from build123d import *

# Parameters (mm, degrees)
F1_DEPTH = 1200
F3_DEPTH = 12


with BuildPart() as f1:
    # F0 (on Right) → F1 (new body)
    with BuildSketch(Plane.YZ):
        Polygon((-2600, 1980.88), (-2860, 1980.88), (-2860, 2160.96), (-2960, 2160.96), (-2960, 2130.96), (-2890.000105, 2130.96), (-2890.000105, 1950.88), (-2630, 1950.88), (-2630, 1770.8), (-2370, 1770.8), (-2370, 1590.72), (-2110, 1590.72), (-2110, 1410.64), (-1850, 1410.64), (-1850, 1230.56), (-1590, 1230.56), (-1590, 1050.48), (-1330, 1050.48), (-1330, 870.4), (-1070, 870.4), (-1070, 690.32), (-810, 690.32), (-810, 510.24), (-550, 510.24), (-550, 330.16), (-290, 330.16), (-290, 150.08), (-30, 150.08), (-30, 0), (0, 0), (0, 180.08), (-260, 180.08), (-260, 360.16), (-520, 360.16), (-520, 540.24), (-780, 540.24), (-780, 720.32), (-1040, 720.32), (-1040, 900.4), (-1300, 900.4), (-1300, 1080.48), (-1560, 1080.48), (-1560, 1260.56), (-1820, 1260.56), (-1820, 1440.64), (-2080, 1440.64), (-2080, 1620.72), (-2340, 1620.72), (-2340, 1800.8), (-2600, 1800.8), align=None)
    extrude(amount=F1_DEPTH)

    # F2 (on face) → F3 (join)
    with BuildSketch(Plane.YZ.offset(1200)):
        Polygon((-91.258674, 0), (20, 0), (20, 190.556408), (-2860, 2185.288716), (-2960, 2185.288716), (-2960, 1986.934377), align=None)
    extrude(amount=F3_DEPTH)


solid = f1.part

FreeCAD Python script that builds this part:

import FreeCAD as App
import Part
import Sketcher


def add_polygon(sketch, points):
    """Adds a closed chain of lines whose ends are joined by coincident constraints."""
    first, n = sketch.GeometryCount, len(points)
    for a, b in zip(points, points[1:] + points[:1]):
        sketch.addGeometry(Part.LineSegment(App.Vector(*a, 0), App.Vector(*b, 0)), False)
    for i in range(n):
        sketch.addConstraint(Sketcher.Constraint("Coincident", first + i, 2, first + (i + 1) % n, 1))

doc = App.newDocument("Part")
params = doc.addObject("Spreadsheet::Sheet", "Params")
for row, (alias, value) in enumerate([
    ("sketch1_width", "260 mm"),
    ("sketch1_width2", "100 mm"),
    ("sketch1_width3", "30 mm"),
    ("sketch1_height", "180.08 mm"),
    ("pad1_length", "1200 mm"),
    ("sketch2_width", "100 mm"),
    ("pad2_length", "12 mm"),
], start=1):
    params.set(f"A{row}", alias)
    params.set(f"B{row}", "=" + value)
    params.setAlias(f"B{row}", alias)

body = doc.addObject("PartDesign::Body", "Body")

sketch1 = body.newObject("Sketcher::SketchObject", "Sketch")
sketch1.AttachmentSupport = (doc.getObject("YZ_Plane"), [""])
sketch1.MapMode = "FlatFace"
add_polygon(sketch1, [(-2600, 1981), (-2860, 1981), (-2860, 2161), (-2960, 2161), (-2960, 2131), (-2890, 2131), (-2890, 1951), (-2630, 1951), (-2630, 1771), (-2370, 1771), (-2370, 1591), (-2110, 1591), (-2110, 1411), (-1850, 1411), (-1850, 1231), (-1590, 1231), (-1590, 1050), (-1330, 1050), (-1330, 870), (-1070, 870), (-1070, 690), (-810, 690), (-810, 510), (-550, 510), (-550, 330), (-290, 330), (-290, 150), (-30, 150), (-30, 0), (0, 0), (0, 180), (-260, 180), (-260, 360), (-520, 360), (-520, 540), (-780, 540), (-780, 720), (-1040, 720), (-1040, 900), (-1300, 900), (-1300, 1080), (-1560, 1080), (-1560, 1261), (-1820, 1261), (-1820, 1441), (-2080, 1441), (-2080, 1621), (-2340, 1621), (-2340, 1801), (-2600, 1801)])
sketch1.addConstraint([
    Sketcher.Constraint("Horizontal", 0),
    Sketcher.Constraint("Vertical", 1),
    Sketcher.Constraint("Horizontal", 2),
    Sketcher.Constraint("Vertical", 3),
    Sketcher.Constraint("Horizontal", 4),
    Sketcher.Constraint("Vertical", 5),
    Sketcher.Constraint("Horizontal", 6),
    Sketcher.Constraint("Vertical", 7),
    Sketcher.Constraint("Horizontal", 8),
    Sketcher.Constraint("Vertical", 9),
    Sketcher.Constraint("Horizontal", 10),
    Sketcher.Constraint("Vertical", 11),
    Sketcher.Constraint("Horizontal", 12),
    Sketcher.Constraint("Vertical", 13),
    Sketcher.Constraint("Horizontal", 14),
    Sketcher.Constraint("Vertical", 15),
    Sketcher.Constraint("Horizontal", 16),
    Sketcher.Constraint("Vertical", 17),
    Sketcher.Constraint("Horizontal", 18),
    Sketcher.Constraint("Vertical", 19),
    Sketcher.Constraint("Horizontal", 20),
    Sketcher.Constraint("Vertical", 21),
    Sketcher.Constraint("Horizontal", 22),
    Sketcher.Constraint("Vertical", 23),
    Sketcher.Constraint("Horizontal", 24),
    Sketcher.Constraint("Vertical", 25),
    Sketcher.Constraint("Horizontal", 26),
    Sketcher.Constraint("Vertical", 27),
    Sketcher.Constraint("Horizontal", 28),
    Sketcher.Constraint("Vertical", 29),
    Sketcher.Constraint("Horizontal", 30),
    Sketcher.Constraint("Vertical", 31),
    Sketcher.Constraint("Horizontal", 32),
    Sketcher.Constraint("Vertical", 33),
    Sketcher.Constraint("Horizontal", 34),
    Sketcher.Constraint("Vertical", 35),
    Sketcher.Constraint("Horizontal", 36),
    Sketcher.Constraint("Vertical", 37),
    Sketcher.Constraint("Horizontal", 38),
    Sketcher.Constraint("Vertical", 39),
    Sketcher.Constraint("Horizontal", 40),
    Sketcher.Constraint("Vertical", 41),
    Sketcher.Constraint("Horizontal", 42),
    Sketcher.Constraint("Vertical", 43),
    Sketcher.Constraint("Horizontal", 44),
    Sketcher.Constraint("Vertical", 45),
    Sketcher.Constraint("Horizontal", 46),
    Sketcher.Constraint("Vertical", 47),
    Sketcher.Constraint("Horizontal", 48),
    Sketcher.Constraint("Vertical", 49),
    Sketcher.Constraint("Coincident", 28, 2, -1, 1),
    Sketcher.Constraint("Equal", 0, 8),
    Sketcher.Constraint("Equal", 8, 10),
    Sketcher.Constraint("Equal", 10, 12),
    Sketcher.Constraint("Equal", 12, 14),
    Sketcher.Constraint("Equal", 14, 16),
    Sketcher.Constraint("Equal", 16, 18),
    Sketcher.Constraint("Equal", 18, 20),
    Sketcher.Constraint("Equal", 20, 22),
    Sketcher.Constraint("Equal", 22, 24),
    Sketcher.Constraint("Equal", 24, 26),
    Sketcher.Constraint("Equal", 26, 30),
    Sketcher.Constraint("Equal", 30, 32),
    Sketcher.Constraint("Equal", 32, 34),
    Sketcher.Constraint("Equal", 34, 36),
    Sketcher.Constraint("Equal", 36, 38),
    Sketcher.Constraint("Equal", 38, 40),
    Sketcher.Constraint("Equal", 40, 42),
    Sketcher.Constraint("Equal", 42, 44),
    Sketcher.Constraint("Equal", 44, 46),
    Sketcher.Constraint("Equal", 46, 48),
    Sketcher.Constraint("Equal", 28, 3),
    Sketcher.Constraint("Equal", 1, 5),
    Sketcher.Constraint("Equal", 5, 7),
    Sketcher.Constraint("Equal", 7, 9),
    Sketcher.Constraint("Equal", 9, 11),
    Sketcher.Constraint("Equal", 11, 13),
    Sketcher.Constraint("Equal", 13, 15),
    Sketcher.Constraint("Equal", 15, 17),
    Sketcher.Constraint("Equal", 17, 19),
    Sketcher.Constraint("Equal", 19, 21),
    Sketcher.Constraint("Equal", 21, 23),
    Sketcher.Constraint("Equal", 23, 25),
    Sketcher.Constraint("Equal", 25, 29),
    Sketcher.Constraint("Equal", 29, 31),
    Sketcher.Constraint("Equal", 31, 33),
    Sketcher.Constraint("Equal", 33, 35),
    Sketcher.Constraint("Equal", 35, 37),
    Sketcher.Constraint("Equal", 37, 39),
    Sketcher.Constraint("Equal", 39, 41),
    Sketcher.Constraint("Equal", 41, 43),
    Sketcher.Constraint("Equal", 43, 45),
    Sketcher.Constraint("Equal", 45, 47),
    Sketcher.Constraint("Equal", 47, 49),
    Sketcher.Constraint("DistanceX", 0, 2, 0, 1, 260.0),
    Sketcher.Constraint("DistanceX", 2, 2, 2, 1, 100.0),
    Sketcher.Constraint("DistanceX", 28, 1, 28, 2, 30.0),
    Sketcher.Constraint("DistanceY", 1, 1, 1, 2, 180.08),
    Sketcher.Constraint("DistanceX", 4, 1, 4, 2, 69.999895),
])
sketch1.setExpression("Constraints[144]", "Params.sketch1_width")
sketch1.setExpression("Constraints[145]", "Params.sketch1_width2")
sketch1.setExpression("Constraints[146]", "Params.sketch1_width3")
sketch1.setExpression("Constraints[147]", "Params.sketch1_height")
pad1 = body.newObject("PartDesign::Pad", "Pad")
pad1.Profile = sketch1
pad1.setExpression("Length", "Params.pad1_length")

sketch2 = body.newObject("Sketcher::SketchObject", "Sketch001")
sketch2.AttachmentSupport = (doc.getObject("YZ_Plane"), [""])
sketch2.MapMode = "FlatFace"
sketch2.AttachmentOffset = App.Placement(App.Vector(0, 0, 1200), App.Rotation())
add_polygon(sketch2, [(-91, 0), (20, 0), (20, 191), (-2860, 2185), (-2960, 2185), (-2960, 1987)])
sketch2.addConstraint([
    Sketcher.Constraint("Horizontal", 0),
    Sketcher.Constraint("Vertical", 1),
    Sketcher.Constraint("Horizontal", 3),
    Sketcher.Constraint("Vertical", 4),
    Sketcher.Constraint("PointOnObject", 0, 2, -1),
    Sketcher.Constraint("Parallel", 2, 5),
    Sketcher.Constraint("DistanceX", 3, 2, 3, 1, 100.0),
    Sketcher.Constraint("DistanceX", -1, 1, 0, 2, 20.0),
    Sketcher.Constraint("DistanceX", 2, 2, -1, 1, 2860.0),
    Sketcher.Constraint("DistanceY", 1, 1, 1, 2, 190.556408),
    Sketcher.Constraint("DistanceY", 4, 2, 4, 1, 198.354339),
    Sketcher.Constraint("Distance", 5, 3489.639668),
])
sketch2.setExpression("Constraints[12]", "Params.sketch2_width")
pad2 = body.newObject("PartDesign::Pad", "Pad001")
pad2.Profile = sketch2
pad2.setExpression("Length", "Params.pad2_length")

doc.recompute()
